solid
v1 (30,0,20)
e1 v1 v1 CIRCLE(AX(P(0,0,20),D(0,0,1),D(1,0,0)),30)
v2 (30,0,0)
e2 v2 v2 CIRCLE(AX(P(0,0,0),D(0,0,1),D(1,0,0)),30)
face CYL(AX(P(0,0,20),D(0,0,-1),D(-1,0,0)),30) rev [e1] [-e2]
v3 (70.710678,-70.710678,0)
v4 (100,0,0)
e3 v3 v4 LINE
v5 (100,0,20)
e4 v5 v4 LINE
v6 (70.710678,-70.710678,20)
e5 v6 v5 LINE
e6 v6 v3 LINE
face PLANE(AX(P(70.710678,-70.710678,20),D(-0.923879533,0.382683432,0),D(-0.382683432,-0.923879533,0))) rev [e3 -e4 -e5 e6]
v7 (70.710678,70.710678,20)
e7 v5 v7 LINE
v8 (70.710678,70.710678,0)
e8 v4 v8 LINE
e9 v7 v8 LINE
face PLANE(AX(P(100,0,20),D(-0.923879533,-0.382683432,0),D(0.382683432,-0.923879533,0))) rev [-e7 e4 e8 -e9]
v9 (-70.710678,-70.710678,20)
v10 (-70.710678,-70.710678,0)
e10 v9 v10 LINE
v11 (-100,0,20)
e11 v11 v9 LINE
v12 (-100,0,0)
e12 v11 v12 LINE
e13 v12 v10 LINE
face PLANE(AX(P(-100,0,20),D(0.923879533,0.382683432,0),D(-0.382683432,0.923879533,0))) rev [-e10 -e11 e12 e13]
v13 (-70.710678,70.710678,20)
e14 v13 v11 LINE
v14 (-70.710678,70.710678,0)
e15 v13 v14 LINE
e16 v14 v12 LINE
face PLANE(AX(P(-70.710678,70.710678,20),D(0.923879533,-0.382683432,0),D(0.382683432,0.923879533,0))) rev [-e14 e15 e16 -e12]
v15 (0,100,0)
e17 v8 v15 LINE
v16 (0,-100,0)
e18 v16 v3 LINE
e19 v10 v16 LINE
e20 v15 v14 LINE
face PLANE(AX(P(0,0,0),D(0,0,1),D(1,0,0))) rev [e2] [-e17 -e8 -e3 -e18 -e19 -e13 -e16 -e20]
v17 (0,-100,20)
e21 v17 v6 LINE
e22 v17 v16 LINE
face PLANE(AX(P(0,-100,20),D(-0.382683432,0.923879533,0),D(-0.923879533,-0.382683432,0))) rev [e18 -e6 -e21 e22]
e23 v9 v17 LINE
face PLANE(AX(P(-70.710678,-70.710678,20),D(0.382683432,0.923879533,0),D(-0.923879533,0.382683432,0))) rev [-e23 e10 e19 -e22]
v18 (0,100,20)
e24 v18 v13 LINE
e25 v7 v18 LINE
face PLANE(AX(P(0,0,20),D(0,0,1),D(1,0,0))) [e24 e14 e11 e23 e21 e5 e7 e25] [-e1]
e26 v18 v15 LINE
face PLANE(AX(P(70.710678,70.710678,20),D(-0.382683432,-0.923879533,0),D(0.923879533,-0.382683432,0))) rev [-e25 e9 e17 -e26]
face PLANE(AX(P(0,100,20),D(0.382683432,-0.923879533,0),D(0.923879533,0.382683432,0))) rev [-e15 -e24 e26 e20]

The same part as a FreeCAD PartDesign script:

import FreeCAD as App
import Part
import Sketcher
Q = App.Units.Quantity


def add_polygon(sketch, points):
    """Adds a closed chain of lines whose ends are joined by coincident constraints."""
    first, n = sketch.GeometryCount, len(points)
    for a, b in zip(points, points[1:] + points[:1]):
        sketch.addGeometry(Part.LineSegment(App.Vector(*a, 0), App.Vector(*b, 0)), False)
    for i in range(n):
        sketch.addConstraint(Sketcher.Constraint("Coincident", first + i, 2, first + (i + 1) % n, 1))

doc = App.newDocument("Part")
params = doc.addObject("Spreadsheet::Sheet", "Params")
for row, (alias, value) in enumerate([
    ("pad1_length", "20 mm"),
    ("sketch2_diameter", "60 mm"),
], start=1):
    params.set(f"A{row}", alias)
    params.set(f"B{row}", "=" + value)
    params.setAlias(f"B{row}", alias)

body = doc.addObject("PartDesign::Body", "Body")

sketch1 = doc.addObject("Sketcher::SketchObject", "Sketch")
body.addObject(sketch1)
sketch1.AttachmentSupport = (doc.XY_Plane, [""])
sketch1.MapMode = "FlatFace"
add_polygon(sketch1, [(100, 0), (71, 71), (0, 100), (-71, 71), (-100, 0), (-71, -71), (0, -100), (71, -71)])
sketch1.addConstraint([
    Sketcher.Constraint("Symmetric", 0, 2, 4, 2, -1, 1),
    Sketcher.Constraint("Symmetric", 1, 2, 5, 2, -1, 1),
    Sketcher.Constraint("Symmetric", 2, 2, 6, 2, -1, 1),
    Sketcher.Constraint("Symmetric", 3, 2, 7, 2, -1, 1),
    Sketcher.Constraint("Symmetric", 0, 2, 2, 2, -2),
    Sketcher.Constraint("PointOnObject", 1, 2, -2),
    Sketcher.Constraint("PointOnObject", 3, 2, -1),
    Sketcher.Constraint("Perpendicular", 0, 2),
    Sketcher.Constraint("Equal", 0, 1),
    Sketcher.Constraint("DistanceY", -1, 1, 1, 2, 100.0),
    Sketcher.Constraint("Angle", 0, Q("112.5 deg")),
])
pad1 = doc.addObject("PartDesign::Pad", "Pad")
body.addObject(pad1)
pad1.Profile = sketch1
pad1.setExpression("Length", "Params.pad1_length")

sketch2 = doc.addObject("Sketcher::SketchObject", "Sketch001")
body.addObject(sketch2)
sketch2.AttachmentSupport = (doc.XY_Plane, [""])
sketch2.MapMode = "FlatFace"
sketch2.addGeometry(Part.Circle(App.Vector(0, 0, 0), App.Vector(0, 0, 1), 30), False)
sketch2.addConstraint([
    Sketcher.Constraint("Coincident", 0, 3, -1, 1),
    Sketcher.Constraint("Diameter", 0, 60.0),
])
sketch2.setExpression("Constraints[1]", "Params.sketch2_diameter")
pocket1 = doc.addObject("PartDesign::Pocket", "Pocket")
body.addObject(pocket1)
pocket1.Profile = sketch2
pocket1.Type = "ThroughAll"
pocket1.Reversed = True

doc.recompute()
